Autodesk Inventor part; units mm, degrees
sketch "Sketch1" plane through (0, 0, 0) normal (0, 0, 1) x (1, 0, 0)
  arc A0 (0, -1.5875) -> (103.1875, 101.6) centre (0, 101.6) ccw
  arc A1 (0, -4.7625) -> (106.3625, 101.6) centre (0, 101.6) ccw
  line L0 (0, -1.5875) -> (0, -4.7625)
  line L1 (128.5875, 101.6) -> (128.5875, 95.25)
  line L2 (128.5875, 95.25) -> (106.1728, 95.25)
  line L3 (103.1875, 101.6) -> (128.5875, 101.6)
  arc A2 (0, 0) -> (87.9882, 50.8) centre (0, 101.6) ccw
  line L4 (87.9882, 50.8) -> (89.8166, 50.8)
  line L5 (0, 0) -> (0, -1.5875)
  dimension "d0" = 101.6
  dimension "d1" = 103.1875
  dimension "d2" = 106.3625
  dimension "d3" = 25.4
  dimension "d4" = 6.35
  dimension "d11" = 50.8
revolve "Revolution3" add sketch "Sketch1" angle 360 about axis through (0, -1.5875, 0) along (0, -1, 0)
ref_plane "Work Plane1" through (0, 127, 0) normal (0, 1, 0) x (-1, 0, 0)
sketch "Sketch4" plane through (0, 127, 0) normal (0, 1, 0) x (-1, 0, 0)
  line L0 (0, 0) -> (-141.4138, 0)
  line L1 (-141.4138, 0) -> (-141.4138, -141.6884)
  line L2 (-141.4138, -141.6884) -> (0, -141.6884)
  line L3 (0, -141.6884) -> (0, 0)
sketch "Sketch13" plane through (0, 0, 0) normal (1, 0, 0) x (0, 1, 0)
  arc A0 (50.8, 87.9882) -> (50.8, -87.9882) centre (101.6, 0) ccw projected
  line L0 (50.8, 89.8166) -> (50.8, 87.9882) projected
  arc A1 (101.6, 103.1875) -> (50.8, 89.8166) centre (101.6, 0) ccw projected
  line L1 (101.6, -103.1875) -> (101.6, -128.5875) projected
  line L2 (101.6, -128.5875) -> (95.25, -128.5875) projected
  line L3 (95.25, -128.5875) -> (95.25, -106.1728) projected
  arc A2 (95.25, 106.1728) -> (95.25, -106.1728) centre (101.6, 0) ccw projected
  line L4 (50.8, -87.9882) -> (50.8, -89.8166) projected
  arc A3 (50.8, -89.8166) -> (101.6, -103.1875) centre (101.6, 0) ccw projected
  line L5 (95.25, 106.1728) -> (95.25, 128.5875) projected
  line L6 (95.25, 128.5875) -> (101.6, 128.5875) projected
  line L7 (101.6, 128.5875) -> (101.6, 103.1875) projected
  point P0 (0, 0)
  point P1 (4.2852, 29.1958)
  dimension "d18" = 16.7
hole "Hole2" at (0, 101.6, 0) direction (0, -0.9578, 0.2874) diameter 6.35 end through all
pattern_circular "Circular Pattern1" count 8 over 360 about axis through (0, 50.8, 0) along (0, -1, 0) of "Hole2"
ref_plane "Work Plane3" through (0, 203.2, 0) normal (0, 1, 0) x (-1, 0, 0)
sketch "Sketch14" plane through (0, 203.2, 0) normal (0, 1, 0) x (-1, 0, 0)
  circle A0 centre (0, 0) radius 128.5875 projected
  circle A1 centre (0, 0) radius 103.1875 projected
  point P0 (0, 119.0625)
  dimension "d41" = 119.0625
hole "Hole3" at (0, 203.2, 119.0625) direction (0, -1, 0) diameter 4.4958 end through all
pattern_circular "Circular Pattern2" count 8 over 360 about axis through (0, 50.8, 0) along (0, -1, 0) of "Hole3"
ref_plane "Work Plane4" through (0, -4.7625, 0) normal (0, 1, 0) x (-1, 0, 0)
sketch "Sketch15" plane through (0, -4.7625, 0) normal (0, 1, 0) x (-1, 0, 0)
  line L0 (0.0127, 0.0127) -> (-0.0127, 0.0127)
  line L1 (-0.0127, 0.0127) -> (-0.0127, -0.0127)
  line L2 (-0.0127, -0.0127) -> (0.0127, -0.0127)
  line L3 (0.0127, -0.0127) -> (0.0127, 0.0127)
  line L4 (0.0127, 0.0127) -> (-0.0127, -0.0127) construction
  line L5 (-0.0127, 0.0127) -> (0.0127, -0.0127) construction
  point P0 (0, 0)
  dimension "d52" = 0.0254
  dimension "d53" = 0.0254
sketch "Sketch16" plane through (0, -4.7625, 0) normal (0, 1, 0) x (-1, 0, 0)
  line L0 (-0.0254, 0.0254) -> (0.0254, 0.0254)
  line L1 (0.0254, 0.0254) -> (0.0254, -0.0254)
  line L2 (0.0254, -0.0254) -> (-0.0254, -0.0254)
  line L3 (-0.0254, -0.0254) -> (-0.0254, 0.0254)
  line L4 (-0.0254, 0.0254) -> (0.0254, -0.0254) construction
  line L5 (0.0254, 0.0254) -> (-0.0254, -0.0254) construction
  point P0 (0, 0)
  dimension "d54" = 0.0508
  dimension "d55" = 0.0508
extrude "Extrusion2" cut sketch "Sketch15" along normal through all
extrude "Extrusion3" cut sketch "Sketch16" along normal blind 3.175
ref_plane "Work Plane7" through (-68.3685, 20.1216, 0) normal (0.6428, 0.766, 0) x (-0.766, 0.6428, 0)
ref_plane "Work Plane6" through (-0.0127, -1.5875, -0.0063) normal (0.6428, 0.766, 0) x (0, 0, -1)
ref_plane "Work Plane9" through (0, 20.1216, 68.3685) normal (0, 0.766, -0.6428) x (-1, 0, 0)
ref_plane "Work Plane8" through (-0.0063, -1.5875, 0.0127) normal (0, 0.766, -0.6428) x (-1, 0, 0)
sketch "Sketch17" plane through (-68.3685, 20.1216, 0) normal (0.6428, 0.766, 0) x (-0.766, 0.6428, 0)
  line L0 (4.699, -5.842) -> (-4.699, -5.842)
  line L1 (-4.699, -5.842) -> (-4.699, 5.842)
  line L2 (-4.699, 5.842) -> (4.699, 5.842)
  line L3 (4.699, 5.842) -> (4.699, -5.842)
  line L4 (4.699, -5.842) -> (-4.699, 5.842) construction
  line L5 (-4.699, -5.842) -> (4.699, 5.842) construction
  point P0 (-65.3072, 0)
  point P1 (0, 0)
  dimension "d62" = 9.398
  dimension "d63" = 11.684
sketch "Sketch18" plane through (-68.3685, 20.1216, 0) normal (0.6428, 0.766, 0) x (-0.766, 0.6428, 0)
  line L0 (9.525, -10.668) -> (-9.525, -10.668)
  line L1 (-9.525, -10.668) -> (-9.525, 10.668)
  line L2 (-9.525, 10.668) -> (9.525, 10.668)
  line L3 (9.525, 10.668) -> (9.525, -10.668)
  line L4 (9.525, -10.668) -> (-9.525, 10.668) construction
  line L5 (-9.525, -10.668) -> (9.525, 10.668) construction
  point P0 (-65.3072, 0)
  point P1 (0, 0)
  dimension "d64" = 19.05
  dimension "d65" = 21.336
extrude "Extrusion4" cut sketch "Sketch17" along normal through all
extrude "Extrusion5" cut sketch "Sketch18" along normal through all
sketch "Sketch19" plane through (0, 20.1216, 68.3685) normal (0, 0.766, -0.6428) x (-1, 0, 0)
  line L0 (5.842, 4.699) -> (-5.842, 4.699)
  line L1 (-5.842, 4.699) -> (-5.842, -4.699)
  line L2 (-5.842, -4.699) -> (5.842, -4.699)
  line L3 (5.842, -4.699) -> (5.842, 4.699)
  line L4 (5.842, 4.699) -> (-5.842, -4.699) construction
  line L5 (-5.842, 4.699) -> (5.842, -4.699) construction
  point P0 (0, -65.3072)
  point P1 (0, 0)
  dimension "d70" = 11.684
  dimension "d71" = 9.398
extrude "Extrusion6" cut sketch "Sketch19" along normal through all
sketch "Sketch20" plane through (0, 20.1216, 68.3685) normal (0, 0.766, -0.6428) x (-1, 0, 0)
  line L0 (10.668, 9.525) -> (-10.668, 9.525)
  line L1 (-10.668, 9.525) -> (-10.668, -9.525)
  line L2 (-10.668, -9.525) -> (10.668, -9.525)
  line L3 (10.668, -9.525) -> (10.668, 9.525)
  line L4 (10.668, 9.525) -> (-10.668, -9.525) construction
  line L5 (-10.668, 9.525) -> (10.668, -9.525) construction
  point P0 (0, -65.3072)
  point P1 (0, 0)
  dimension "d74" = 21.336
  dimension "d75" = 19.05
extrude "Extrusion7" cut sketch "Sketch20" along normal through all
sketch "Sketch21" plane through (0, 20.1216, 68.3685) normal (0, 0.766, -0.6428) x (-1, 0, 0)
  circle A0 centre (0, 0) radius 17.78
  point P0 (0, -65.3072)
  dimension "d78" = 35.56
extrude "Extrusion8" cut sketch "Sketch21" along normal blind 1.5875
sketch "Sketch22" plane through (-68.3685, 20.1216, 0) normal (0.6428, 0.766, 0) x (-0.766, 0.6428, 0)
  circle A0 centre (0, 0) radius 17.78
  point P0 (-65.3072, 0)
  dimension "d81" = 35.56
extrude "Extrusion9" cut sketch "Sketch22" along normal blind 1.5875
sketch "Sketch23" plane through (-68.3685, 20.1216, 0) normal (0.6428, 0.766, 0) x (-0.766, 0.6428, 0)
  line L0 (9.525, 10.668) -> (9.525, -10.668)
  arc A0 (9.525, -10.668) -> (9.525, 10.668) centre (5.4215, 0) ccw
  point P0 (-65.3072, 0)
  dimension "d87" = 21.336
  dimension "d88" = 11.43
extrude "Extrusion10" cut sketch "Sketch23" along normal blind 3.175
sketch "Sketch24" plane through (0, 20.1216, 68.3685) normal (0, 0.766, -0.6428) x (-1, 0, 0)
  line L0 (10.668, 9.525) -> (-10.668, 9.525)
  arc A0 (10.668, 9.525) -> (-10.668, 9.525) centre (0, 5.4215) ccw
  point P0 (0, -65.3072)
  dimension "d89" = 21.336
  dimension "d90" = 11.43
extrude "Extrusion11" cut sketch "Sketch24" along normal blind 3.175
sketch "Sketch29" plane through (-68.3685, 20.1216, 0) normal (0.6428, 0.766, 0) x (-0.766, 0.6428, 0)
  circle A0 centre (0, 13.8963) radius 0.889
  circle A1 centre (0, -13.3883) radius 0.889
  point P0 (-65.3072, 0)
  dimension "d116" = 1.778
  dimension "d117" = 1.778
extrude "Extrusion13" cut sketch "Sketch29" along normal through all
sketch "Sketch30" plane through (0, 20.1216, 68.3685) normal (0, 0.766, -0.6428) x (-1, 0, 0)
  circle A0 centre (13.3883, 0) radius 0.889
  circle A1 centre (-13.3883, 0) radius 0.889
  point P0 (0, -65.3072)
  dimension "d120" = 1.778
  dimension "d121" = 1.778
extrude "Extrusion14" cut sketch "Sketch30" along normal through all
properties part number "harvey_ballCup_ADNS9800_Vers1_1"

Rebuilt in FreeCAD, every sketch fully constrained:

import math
import FreeCAD as App
import Part
import Sketcher

V = App.Vector
Q = App.Units.Quantity


def add_polygon(sketch, points):
    """Adds a closed chain of lines whose ends are joined by coincident constraints."""
    first, n = sketch.GeometryCount, len(points)
    for a, b in zip(points, points[1:] + points[:1]):
        sketch.addGeometry(Part.LineSegment(App.Vector(*a, 0), App.Vector(*b, 0)), False)
    for i in range(n):
        sketch.addConstraint(Sketcher.Constraint("Coincident", first + i, 2, first + (i + 1) % n, 1))

doc = App.newDocument("Part")
body = doc.addObject("PartDesign::Body", "Body")

sketch1 = body.newObject("Sketcher::SketchObject", "Sketch")
sketch1.AttachmentSupport = (doc.getObject("XY_Plane"), [""])
sketch1.MapMode = "FlatFace"
sketch1.addGeometry(Part.LineSegment(V(0, 0, 0), V(0, -4.8, 0)), False)
sketch1.addGeometry(Part.ArcOfCircle(Part.Circle(V(0, 101.6, 0), V(0, 0, 1), 106.4), math.radians(-90), math.radians(-3)), False)
sketch1.addGeometry(Part.LineSegment(V(106.2, 95.2, 0), V(128.6, 95.2, 0)), False)
sketch1.addGeometry(Part.LineSegment(V(128.6, 95.2, 0), V(128.6, 101.6, 0)), False)
sketch1.addGeometry(Part.LineSegment(V(128.6, 101.6, 0), V(103.2, 101.6, 0)), False)
sketch1.addGeometry(Part.ArcOfCircle(Part.Circle(V(0, 101.6, 0), V(0, 0, 1), 103.2), math.radians(-29), math.radians(0)), False)
sketch1.addGeometry(Part.LineSegment(V(89.8, 50.8, 0), V(88, 50.8, 0)), False)
sketch1.addGeometry(Part.ArcOfCircle(Part.Circle(V(0, 101.6, 0), V(0, 0, 1), 101.6), math.radians(-90), math.radians(-30)), False)
sketch1.addConstraint(Sketcher.Constraint("Coincident", 0, 2, 1, 1))
sketch1.addConstraint(Sketcher.Constraint("Coincident", 1, 2, 2, 1))
sketch1.addConstraint(Sketcher.Constraint("Coincident", 2, 2, 3, 1))
sketch1.addConstraint(Sketcher.Constraint("Coincident", 3, 2, 4, 1))
sketch1.addConstraint(Sketcher.Constraint("Coincident", 4, 2, 5, 2))
sketch1.addConstraint(Sketcher.Constraint("Coincident", 5, 1, 6, 1))
sketch1.addConstraint(Sketcher.Constraint("Coincident", 6, 2, 7, 2))
sketch1.addConstraint(Sketcher.Constraint("Coincident", 7, 1, 0, 1))
sketch1.addConstraint(Sketcher.Constraint("Vertical", 0))
sketch1.addConstraint(Sketcher.Constraint("Horizontal", 2))
sketch1.addConstraint(Sketcher.Constraint("Vertical", 3))
sketch1.addConstraint(Sketcher.Constraint("Horizontal", 4))
sketch1.addConstraint(Sketcher.Constraint("Horizontal", 6))
sketch1.addConstraint(Sketcher.Constraint("Coincident", 7, 1, -1, 1))
sketch1.addConstraint(Sketcher.Constraint("Coincident", 5, 3, 1, 3))
sketch1.addConstraint(Sketcher.Constraint("Coincident", 7, 3, 1, 3))
sketch1.addConstraint(Sketcher.Constraint("PointOnObject", 1, 3, -2))
sketch1.addConstraint(Sketcher.Constraint("Horizontal", 7, 3, 3, 2))
sketch1.addConstraint(Sketcher.Constraint("Radius", 7, Q("4 in")))
sketch1.addConstraint(Sketcher.Constraint("DistanceX", 4, 2, 4, 1, Q("1 in")))
sketch1.addConstraint(Sketcher.Constraint("DistanceY", -1, 1, 5, 1, Q("2 in")))
sketch1.addConstraint(Sketcher.Constraint("Radius", 1, Q("4.1875 in")))
sketch1.addConstraint(Sketcher.Constraint("Radius", 5, Q("4.0625 in")))
sketch1.addConstraint(Sketcher.Constraint("DistanceY", 3, 1, 3, 2, Q("0.25 in")))
revolution = body.newObject("PartDesign::Revolution", "Revolution")
revolution.Profile = sketch1
revolution.ReferenceAxis = (sketch1, ["V_Axis"])
revolution.Angle = 360

sketch2 = body.newObject("Sketcher::SketchObject", "Sketch001")
sketch2.Placement = App.Placement(V(0, 93.207795, -27.968177), App.Rotation(V(0, 0.287402932, 0.95780977), V(1.000000001, 0, 0), V(0, 0.95780977, -0.287402932), "ZXY"))
sketch2.addGeometry(Part.Circle(V(29.2, 0, 0), V(0, 0, 1), 3.2), False)
sketch2.addConstraint(Sketcher.Constraint("PointOnObject", 0, 3, -1))
sketch2.addConstraint(Sketcher.Constraint("Diameter", 0, Q("0.25 in")))
sketch2.addConstraint(Sketcher.Constraint("DistanceX", -1, 1, 0, 3, Q("1.1496 in")))
doc.recompute()
hole = body.newObject("PartDesign::Hole", "Hole")
hole.Profile = sketch2
hole.ThreadType = "None"
hole.Diameter = Q("0.25 in")
hole.DepthType = "ThroughAll"
doc.recompute()

polarpattern = body.newObject("PartDesign::PolarPattern", "PolarPattern")
polarpattern.Originals = [hole]
polarpattern.Axis = (doc.getObject("Y_Axis"), [""])
polarpattern.Angle = 360
polarpattern.Occurrences = 8
body.Tip = polarpattern

sketch3 = body.newObject("Sketcher::SketchObject", "Sketch002")
sketch3.AttachmentSupport = (doc.getObject("XZ_Plane"), [""])
sketch3.MapMode = "FlatFace"
sketch3.AttachmentOffset = App.Placement(V(0, 0, -8 * 25.4), App.Rotation())
sketch3.addGeometry(Part.Circle(V(0, 119.1, 0), V(0, 0, 1), 2.2), False)
sketch3.addConstraint(Sketcher.Constraint("PointOnObject", 0, 3, -2))
sketch3.addConstraint(Sketcher.Constraint("Diameter", 0, Q("0.177 in")))
sketch3.addConstraint(Sketcher.Constraint("DistanceY", -1, 1, 0, 3, Q("4.6875 in")))
doc.recompute()
hole2 = body.newObject("PartDesign::Hole", "Hole001")
hole2.Profile = sketch3
hole2.ThreadType = "None"
hole2.Diameter = Q("0.177 in")
hole2.DepthType = "ThroughAll"
hole2.Reversed = True
doc.recompute()

polarpattern2 = body.newObject("PartDesign::PolarPattern", "PolarPattern001")
polarpattern2.Originals = [hole2]
polarpattern2.Axis = (doc.getObject("Y_Axis"), [""])
polarpattern2.Angle = 360
polarpattern2.Occurrences = 8
body.Tip = polarpattern2

sketch4 = body.newObject("Sketcher::SketchObject", "Sketch003")
sketch4.AttachmentSupport = (doc.getObject("XZ_Plane"), [""])
sketch4.MapMode = "FlatFace"
sketch4.AttachmentOffset = App.Placement(V(0, 0, 0.1875 * 25.4), App.Rotation())
add_polygon(sketch4, [(-0.013, -0.013), (-0.013, 0.013), (0.013, 0.013), (0.013, -0.013)])
sketch4.addConstraint(Sketcher.Constraint("Vertical", 0))
sketch4.addConstraint(Sketcher.Constraint("Horizontal", 1))
sketch4.addConstraint(Sketcher.Constraint("Vertical", 2))
sketch4.addConstraint(Sketcher.Constraint("Horizontal", 3))
sketch4.addConstraint(Sketcher.Constraint("Symmetric", 0, 2, 2, 2, -1, 1))
sketch4.addConstraint(Sketcher.Constraint("Equal", 3, 0))
sketch4.addConstraint(Sketcher.Constraint("DistanceX", 1, 1, 1, 2, Q("0.001 in")))
pocket1 = body.newObject("PartDesign::Pocket", "Pocket")
pocket1.Profile = sketch4
pocket1.Type = "ThroughAll"

sketch5 = body.newObject("Sketcher::SketchObject", "Sketch004")
sketch5.AttachmentSupport = (doc.getObject("XZ_Plane"), [""])
sketch5.MapMode = "FlatFace"
sketch5.AttachmentOffset = App.Placement(V(0, 0, 0.1875 * 25.4), App.Rotation())
add_polygon(sketch5, [(-0.03, 0.03), (0.03, 0.03), (0.03, -0.03), (-0.03, -0.03)])
sketch5.addConstraint(Sketcher.Constraint("Horizontal", 0))
sketch5.addConstraint(Sketcher.Constraint("Vertical", 1))
sketch5.addConstraint(Sketcher.Constraint("Horizontal", 2))
sketch5.addConstraint(Sketcher.Constraint("Vertical", 3))
sketch5.addConstraint(Sketcher.Constraint("Symmetric", 0, 2, 2, 2, -1, 1))
sketch5.addConstraint(Sketcher.Constraint("Equal", 2, 1))
sketch5.addConstraint(Sketcher.Constraint("DistanceX", 0, 1, 0, 2, Q("0.002 in")))
pocket2 = body.newObject("PartDesign::Pocket", "Pocket001")
pocket2.Profile = sketch5
pocket2.Length = Q("0.125 in")

sketch6 = body.newObject("Sketcher::SketchObject", "Sketch005")
sketch6.Placement = App.Placement(V(-68.3685, 20.1216, 0), App.Rotation(V(-0.766044443, 0.64278761, 0), V(0, 0, 1), V(0.64278761, 0.766044443, 0), "ZXY"))
add_polygon(sketch6, [(-5, -6), (5, -6), (5, 6), (-5, 6)])
sketch6.addConstraint(Sketcher.Constraint("Horizontal", 0))
sketch6.addConstraint(Sketcher.Constraint("Vertical", 1))
sketch6.addConstraint(Sketcher.Constraint("Horizontal", 2))
sketch6.addConstraint(Sketcher.Constraint("Vertical", 3))
sketch6.addConstraint(Sketcher.Constraint("Symmetric", 0, 2, 2, 2, -1, 1))
sketch6.addConstraint(Sketcher.Constraint("DistanceX", 0, 1, 0, 2, Q("0.37 in")))
sketch6.addConstraint(Sketcher.Constraint("DistanceY", 1, 1, 1, 2, Q("0.46 in")))
pocket3 = body.newObject("PartDesign::Pocket", "Pocket002")
pocket3.Profile = sketch6
pocket3.Type = "ThroughAll"
pocket3.Reversed = True

sketch7 = body.newObject("Sketcher::SketchObject", "Sketch006")
sketch7.Placement = App.Placement(V(-68.3685, 20.1216, 0), App.Rotation(V(-0.766044443, 0.64278761, 0), V(0, 0, 1), V(0.64278761, 0.766044443, 0), "ZXY"))
add_polygon(sketch7, [(-10, -11), (10, -11), (10, 11), (-10, 11)])
sketch7.addConstraint(Sketcher.Constraint("Horizontal", 0))
sketch7.addConstraint(Sketcher.Constraint("Vertical", 1))
sketch7.addConstraint(Sketcher.Constraint("Horizontal", 2))
sketch7.addConstraint(Sketcher.Constraint("Vertical", 3))
sketch7.addConstraint(Sketcher.Constraint("Symmetric", 0, 2, 2, 2, -1, 1))
sketch7.addConstraint(Sketcher.Constraint("DistanceX", 0, 1, 0, 2, Q("0.75 in")))
sketch7.addConstraint(Sketcher.Constraint("DistanceY", 1, 1, 1, 2, Q("0.84 in")))
pocket4 = body.newObject("PartDesign::Pocket", "Pocket003")
pocket4.Profile = sketch7
pocket4.Type = "ThroughAll"
pocket4.Reversed = True

sketch8 = body.newObject("Sketcher::SketchObject", "Sketch007")
sketch8.Placement = App.Placement(V(0, 20.1216, 68.3685), App.Rotation(V(-1, 0, 0), V(0, 0.64278761, 0.766044443), V(0, 0.766044443, -0.64278761), "ZXY"))
add_polygon(sketch8, [(6, -5), (6, 5), (-6, 5), (-6, -5)])
sketch8.addConstraint(Sketcher.Constraint("Vertical", 0))
sketch8.addConstraint(Sketcher.Constraint("Horizontal", 1))
sketch8.addConstraint(Sketcher.Constraint("Vertical", 2))
sketch8.addConstraint(Sketcher.Constraint("Horizontal", 3))
sketch8.addConstraint(Sketcher.Constraint("Symmetric", 0, 2, 2, 2, -1, 1))
sketch8.addConstraint(Sketcher.Constraint("DistanceX", 1, 2, 1, 1, Q("0.46 in")))
sketch8.addConstraint(Sketcher.Constraint("DistanceY", 0, 1, 0, 2, Q("0.37 in")))
pocket5 = body.newObject("PartDesign::Pocket", "Pocket004")
pocket5.Profile = sketch8
pocket5.Type = "ThroughAll"
pocket5.Reversed = True

sketch9 = body.newObject("Sketcher::SketchObject", "Sketch008")
sketch9.Placement = App.Placement(V(0, 20.1216, 68.3685), App.Rotation(V(-1, 0, 0), V(0, 0.64278761, 0.766044443), V(0, 0.766044443, -0.64278761), "ZXY"))
add_polygon(sketch9, [(11, -10), (11, 10), (-11, 10), (-11, -10)])
sketch9.addConstraint(Sketcher.Constraint("Vertical", 0))
sketch9.addConstraint(Sketcher.Constraint("Horizontal", 1))
sketch9.addConstraint(Sketcher.Constraint("Vertical", 2))
sketch9.addConstraint(Sketcher.Constraint("Horizontal", 3))
sketch9.addConstraint(Sketcher.Constraint("Symmetric", 0, 2, 2, 2, -1, 1))
sketch9.addConstraint(Sketcher.Constraint("DistanceX", 1, 2, 1, 1, Q("0.84 in")))
sketch9.addConstraint(Sketcher.Constraint("DistanceY", 0, 1, 0, 2, Q("0.75 in")))
pocket6 = body.newObject("PartDesign::Pocket", "Pocket005")
pocket6.Profile = sketch9
pocket6.Type = "ThroughAll"
pocket6.Reversed = True

sketch10 = body.newObject("Sketcher::SketchObject", "Sketch009")
sketch10.Placement = App.Placement(V(0, 20.1216, 68.3685), App.Rotation(V(-1, 0, 0), V(0, 0.64278761, 0.766044443), V(0, 0.766044443, -0.64278761), "ZXY"))
sketch10.addGeometry(Part.Circle(V(0, 0, 0), V(0, 0, 1), 18), False)
sketch10.addConstraint(Sketcher.Constraint("Coincident", 0, 3, -1, 1))
sketch10.addConstraint(Sketcher.Constraint("Diameter", 0, Q("1.4 in")))
pocket7 = body.newObject("PartDesign::Pocket", "Pocket006")
pocket7.Profile = sketch10
pocket7.Length = Q("0.0625 in")
pocket7.Reversed = True

sketch11 = body.newObject("Sketcher::SketchObject", "Sketch010")
sketch11.Placement = App.Placement(V(-68.3685, 20.1216, 0), App.Rotation(V(-0.766044443, 0.64278761, 0), V(0, 0, 1), V(0.64278761, 0.766044443, 0), "ZXY"))
sketch11.addGeometry(Part.Circle(V(0, 0, 0), V(0, 0, 1), 18), False)
sketch11.addConstraint(Sketcher.Constraint("Coincident", 0, 3, -1, 1))
sketch11.addConstraint(Sketcher.Constraint("Diameter", 0, Q("1.4 in")))
pocket8 = body.newObject("PartDesign::Pocket", "Pocket007")
pocket8.Profile = sketch11
pocket8.Length = Q("0.0625 in")
pocket8.Reversed = True

sketch12 = body.newObject("Sketcher::SketchObject", "Sketch011")
sketch12.Placement = App.Placement(V(-68.3685, 20.1216, 0), App.Rotation(V(-0.766044443, 0.64278761, 0), V(0, 0, 1), V(0.64278761, 0.766044443, 0), "ZXY"))
sketch12.addGeometry(Part.ArcOfCircle(Part.Circle(V(5, 0, 0), V(0, 0, 1), 11), math.radians(-69), math.radians(69)), False)
sketch12.addGeometry(Part.LineSegment(V(10, 11, 0), V(10, -11, 0)), False)
sketch12.addConstraint(Sketcher.Constraint("Coincident", 0, 1, 1, 2))
sketch12.addConstraint(Sketcher.Constraint("Coincident", 1, 1, 0, 2))
sketch12.addConstraint(Sketcher.Constraint("Vertical", 1))
sketch12.addConstraint(Sketcher.Constraint("PointOnObject", 0, 3, -1))
sketch12.addConstraint(Sketcher.Constraint("Radius", 0, Q("0.45 in")))
sketch12.addConstraint(Sketcher.Constraint("DistanceY", 1, 2, 1, 1, Q("0.84 in")))
sketch12.addConstraint(Sketcher.Constraint("DistanceX", -1, 1, 0, 1, Q("0.375 in")))
pocket9 = body.newObject("PartDesign::Pocket", "Pocket008")
pocket9.Profile = sketch12
pocket9.Length = Q("0.125 in")
pocket9.Reversed = True

sketch13 = body.newObject("Sketcher::SketchObject", "Sketch012")
sketch13.Placement = App.Placement(V(0, 20.1216, 68.3685), App.Rotation(V(-1, 0, 0), V(0, 0.64278761, 0.766044443), V(0, 0.766044443, -0.64278761), "ZXY"))
sketch13.addGeometry(Part.LineSegment(V(-11, 10, 0), V(11, 10, 0)), False)
sketch13.addGeometry(Part.ArcOfCircle(Part.Circle(V(0, 5, 0), V(0, 0, 1), 11), math.radians(21), math.radians(159)), False)
sketch13.addConstraint(Sketcher.Constraint("Coincident", 0, 1, 1, 2))
sketch13.addConstraint(Sketcher.Constraint("Coincident", 1, 1, 0, 2))
sketch13.addConstraint(Sketcher.Constraint("Horizontal", 0))
sketch13.addConstraint(Sketcher.Constraint("PointOnObject", 1, 3, -2))
sketch13.addConstraint(Sketcher.Constraint("Radius", 1, Q("0.45 in")))
sketch13.addConstraint(Sketcher.Constraint("DistanceX", 0, 1, 0, 2, Q("0.84 in")))
sketch13.addConstraint(Sketcher.Constraint("DistanceY", -1, 1, 0, 1, Q("0.375 in")))
pocket10 = body.newObject("PartDesign::Pocket", "Pocket009")
pocket10.Profile = sketch13
pocket10.Length = Q("0.125 in")
pocket10.Reversed = True

sketch14 = body.newObject("Sketcher::SketchObject", "Sketch013")
sketch14.Placement = App.Placement(V(-68.3685, 20.1216, 0), App.Rotation(V(-0.766044443, 0.64278761, 0), V(0, 0, 1), V(0.64278761, 0.766044443, 0), "ZXY"))
sketch14.addGeometry(Part.Circle(V(0, 13.9, 0), V(0, 0, 1), 0.9), False)
sketch14.addGeometry(Part.Circle(V(0, -13.4, 0), V(0, 0, 1), 0.9), False)
sketch14.addConstraint(Sketcher.Constraint("Equal", 0, 1))
sketch14.addConstraint(Sketcher.Constraint("PointOnObject", 0, 3, -2))
sketch14.addConstraint(Sketcher.Constraint("PointOnObject", 1, 3, -2))
sketch14.addConstraint(Sketcher.Constraint("Diameter", 0, Q("0.07 in")))
sketch14.addConstraint(Sketcher.Constraint("DistanceY", -1, 1, 0, 3, Q("0.5471 in")))
sketch14.addConstraint(Sketcher.Constraint("DistanceY", 1, 3, -1, 1, Q("0.5271 in")))
pocket11 = body.newObject("PartDesign::Pocket", "Pocket010")
pocket11.Profile = sketch14
pocket11.Type = "ThroughAll"
pocket11.Reversed = True

sketch15 = body.newObject("Sketcher::SketchObject", "Sketch014")
sketch15.Placement = App.Placement(V(0, 20.1216, 68.3685), App.Rotation(V(-1, 0, 0), V(0, 0.64278761, 0.766044443), V(0, 0.766044443, -0.64278761), "ZXY"))
sketch15.addGeometry(Part.Circle(V(13.4, 0, 0), V(0, 0, 1), 0.9), False)
sketch15.addGeometry(Part.Circle(V(-13.4, 0, 0), V(0, 0, 1), 0.9), False)
sketch15.addConstraint(Sketcher.Constraint("Equal", 0, 1))
sketch15.addConstraint(Sketcher.Constraint("Symmetric", 0, 3, 1, 3, -1, 1))
sketch15.addConstraint(Sketcher.Constraint("PointOnObject", 0, 3, -1))
sketch15.addConstraint(Sketcher.Constraint("Diameter", 0, Q("0.07 in")))
sketch15.addConstraint(Sketcher.Constraint("DistanceX", -1, 1, 0, 3, Q("0.5271 in")))
pocket12 = body.newObject("PartDesign::Pocket", "Pocket011")
pocket12.Profile = sketch15
pocket12.Type = "ThroughAll"
pocket12.Reversed = True

doc.recompute()
